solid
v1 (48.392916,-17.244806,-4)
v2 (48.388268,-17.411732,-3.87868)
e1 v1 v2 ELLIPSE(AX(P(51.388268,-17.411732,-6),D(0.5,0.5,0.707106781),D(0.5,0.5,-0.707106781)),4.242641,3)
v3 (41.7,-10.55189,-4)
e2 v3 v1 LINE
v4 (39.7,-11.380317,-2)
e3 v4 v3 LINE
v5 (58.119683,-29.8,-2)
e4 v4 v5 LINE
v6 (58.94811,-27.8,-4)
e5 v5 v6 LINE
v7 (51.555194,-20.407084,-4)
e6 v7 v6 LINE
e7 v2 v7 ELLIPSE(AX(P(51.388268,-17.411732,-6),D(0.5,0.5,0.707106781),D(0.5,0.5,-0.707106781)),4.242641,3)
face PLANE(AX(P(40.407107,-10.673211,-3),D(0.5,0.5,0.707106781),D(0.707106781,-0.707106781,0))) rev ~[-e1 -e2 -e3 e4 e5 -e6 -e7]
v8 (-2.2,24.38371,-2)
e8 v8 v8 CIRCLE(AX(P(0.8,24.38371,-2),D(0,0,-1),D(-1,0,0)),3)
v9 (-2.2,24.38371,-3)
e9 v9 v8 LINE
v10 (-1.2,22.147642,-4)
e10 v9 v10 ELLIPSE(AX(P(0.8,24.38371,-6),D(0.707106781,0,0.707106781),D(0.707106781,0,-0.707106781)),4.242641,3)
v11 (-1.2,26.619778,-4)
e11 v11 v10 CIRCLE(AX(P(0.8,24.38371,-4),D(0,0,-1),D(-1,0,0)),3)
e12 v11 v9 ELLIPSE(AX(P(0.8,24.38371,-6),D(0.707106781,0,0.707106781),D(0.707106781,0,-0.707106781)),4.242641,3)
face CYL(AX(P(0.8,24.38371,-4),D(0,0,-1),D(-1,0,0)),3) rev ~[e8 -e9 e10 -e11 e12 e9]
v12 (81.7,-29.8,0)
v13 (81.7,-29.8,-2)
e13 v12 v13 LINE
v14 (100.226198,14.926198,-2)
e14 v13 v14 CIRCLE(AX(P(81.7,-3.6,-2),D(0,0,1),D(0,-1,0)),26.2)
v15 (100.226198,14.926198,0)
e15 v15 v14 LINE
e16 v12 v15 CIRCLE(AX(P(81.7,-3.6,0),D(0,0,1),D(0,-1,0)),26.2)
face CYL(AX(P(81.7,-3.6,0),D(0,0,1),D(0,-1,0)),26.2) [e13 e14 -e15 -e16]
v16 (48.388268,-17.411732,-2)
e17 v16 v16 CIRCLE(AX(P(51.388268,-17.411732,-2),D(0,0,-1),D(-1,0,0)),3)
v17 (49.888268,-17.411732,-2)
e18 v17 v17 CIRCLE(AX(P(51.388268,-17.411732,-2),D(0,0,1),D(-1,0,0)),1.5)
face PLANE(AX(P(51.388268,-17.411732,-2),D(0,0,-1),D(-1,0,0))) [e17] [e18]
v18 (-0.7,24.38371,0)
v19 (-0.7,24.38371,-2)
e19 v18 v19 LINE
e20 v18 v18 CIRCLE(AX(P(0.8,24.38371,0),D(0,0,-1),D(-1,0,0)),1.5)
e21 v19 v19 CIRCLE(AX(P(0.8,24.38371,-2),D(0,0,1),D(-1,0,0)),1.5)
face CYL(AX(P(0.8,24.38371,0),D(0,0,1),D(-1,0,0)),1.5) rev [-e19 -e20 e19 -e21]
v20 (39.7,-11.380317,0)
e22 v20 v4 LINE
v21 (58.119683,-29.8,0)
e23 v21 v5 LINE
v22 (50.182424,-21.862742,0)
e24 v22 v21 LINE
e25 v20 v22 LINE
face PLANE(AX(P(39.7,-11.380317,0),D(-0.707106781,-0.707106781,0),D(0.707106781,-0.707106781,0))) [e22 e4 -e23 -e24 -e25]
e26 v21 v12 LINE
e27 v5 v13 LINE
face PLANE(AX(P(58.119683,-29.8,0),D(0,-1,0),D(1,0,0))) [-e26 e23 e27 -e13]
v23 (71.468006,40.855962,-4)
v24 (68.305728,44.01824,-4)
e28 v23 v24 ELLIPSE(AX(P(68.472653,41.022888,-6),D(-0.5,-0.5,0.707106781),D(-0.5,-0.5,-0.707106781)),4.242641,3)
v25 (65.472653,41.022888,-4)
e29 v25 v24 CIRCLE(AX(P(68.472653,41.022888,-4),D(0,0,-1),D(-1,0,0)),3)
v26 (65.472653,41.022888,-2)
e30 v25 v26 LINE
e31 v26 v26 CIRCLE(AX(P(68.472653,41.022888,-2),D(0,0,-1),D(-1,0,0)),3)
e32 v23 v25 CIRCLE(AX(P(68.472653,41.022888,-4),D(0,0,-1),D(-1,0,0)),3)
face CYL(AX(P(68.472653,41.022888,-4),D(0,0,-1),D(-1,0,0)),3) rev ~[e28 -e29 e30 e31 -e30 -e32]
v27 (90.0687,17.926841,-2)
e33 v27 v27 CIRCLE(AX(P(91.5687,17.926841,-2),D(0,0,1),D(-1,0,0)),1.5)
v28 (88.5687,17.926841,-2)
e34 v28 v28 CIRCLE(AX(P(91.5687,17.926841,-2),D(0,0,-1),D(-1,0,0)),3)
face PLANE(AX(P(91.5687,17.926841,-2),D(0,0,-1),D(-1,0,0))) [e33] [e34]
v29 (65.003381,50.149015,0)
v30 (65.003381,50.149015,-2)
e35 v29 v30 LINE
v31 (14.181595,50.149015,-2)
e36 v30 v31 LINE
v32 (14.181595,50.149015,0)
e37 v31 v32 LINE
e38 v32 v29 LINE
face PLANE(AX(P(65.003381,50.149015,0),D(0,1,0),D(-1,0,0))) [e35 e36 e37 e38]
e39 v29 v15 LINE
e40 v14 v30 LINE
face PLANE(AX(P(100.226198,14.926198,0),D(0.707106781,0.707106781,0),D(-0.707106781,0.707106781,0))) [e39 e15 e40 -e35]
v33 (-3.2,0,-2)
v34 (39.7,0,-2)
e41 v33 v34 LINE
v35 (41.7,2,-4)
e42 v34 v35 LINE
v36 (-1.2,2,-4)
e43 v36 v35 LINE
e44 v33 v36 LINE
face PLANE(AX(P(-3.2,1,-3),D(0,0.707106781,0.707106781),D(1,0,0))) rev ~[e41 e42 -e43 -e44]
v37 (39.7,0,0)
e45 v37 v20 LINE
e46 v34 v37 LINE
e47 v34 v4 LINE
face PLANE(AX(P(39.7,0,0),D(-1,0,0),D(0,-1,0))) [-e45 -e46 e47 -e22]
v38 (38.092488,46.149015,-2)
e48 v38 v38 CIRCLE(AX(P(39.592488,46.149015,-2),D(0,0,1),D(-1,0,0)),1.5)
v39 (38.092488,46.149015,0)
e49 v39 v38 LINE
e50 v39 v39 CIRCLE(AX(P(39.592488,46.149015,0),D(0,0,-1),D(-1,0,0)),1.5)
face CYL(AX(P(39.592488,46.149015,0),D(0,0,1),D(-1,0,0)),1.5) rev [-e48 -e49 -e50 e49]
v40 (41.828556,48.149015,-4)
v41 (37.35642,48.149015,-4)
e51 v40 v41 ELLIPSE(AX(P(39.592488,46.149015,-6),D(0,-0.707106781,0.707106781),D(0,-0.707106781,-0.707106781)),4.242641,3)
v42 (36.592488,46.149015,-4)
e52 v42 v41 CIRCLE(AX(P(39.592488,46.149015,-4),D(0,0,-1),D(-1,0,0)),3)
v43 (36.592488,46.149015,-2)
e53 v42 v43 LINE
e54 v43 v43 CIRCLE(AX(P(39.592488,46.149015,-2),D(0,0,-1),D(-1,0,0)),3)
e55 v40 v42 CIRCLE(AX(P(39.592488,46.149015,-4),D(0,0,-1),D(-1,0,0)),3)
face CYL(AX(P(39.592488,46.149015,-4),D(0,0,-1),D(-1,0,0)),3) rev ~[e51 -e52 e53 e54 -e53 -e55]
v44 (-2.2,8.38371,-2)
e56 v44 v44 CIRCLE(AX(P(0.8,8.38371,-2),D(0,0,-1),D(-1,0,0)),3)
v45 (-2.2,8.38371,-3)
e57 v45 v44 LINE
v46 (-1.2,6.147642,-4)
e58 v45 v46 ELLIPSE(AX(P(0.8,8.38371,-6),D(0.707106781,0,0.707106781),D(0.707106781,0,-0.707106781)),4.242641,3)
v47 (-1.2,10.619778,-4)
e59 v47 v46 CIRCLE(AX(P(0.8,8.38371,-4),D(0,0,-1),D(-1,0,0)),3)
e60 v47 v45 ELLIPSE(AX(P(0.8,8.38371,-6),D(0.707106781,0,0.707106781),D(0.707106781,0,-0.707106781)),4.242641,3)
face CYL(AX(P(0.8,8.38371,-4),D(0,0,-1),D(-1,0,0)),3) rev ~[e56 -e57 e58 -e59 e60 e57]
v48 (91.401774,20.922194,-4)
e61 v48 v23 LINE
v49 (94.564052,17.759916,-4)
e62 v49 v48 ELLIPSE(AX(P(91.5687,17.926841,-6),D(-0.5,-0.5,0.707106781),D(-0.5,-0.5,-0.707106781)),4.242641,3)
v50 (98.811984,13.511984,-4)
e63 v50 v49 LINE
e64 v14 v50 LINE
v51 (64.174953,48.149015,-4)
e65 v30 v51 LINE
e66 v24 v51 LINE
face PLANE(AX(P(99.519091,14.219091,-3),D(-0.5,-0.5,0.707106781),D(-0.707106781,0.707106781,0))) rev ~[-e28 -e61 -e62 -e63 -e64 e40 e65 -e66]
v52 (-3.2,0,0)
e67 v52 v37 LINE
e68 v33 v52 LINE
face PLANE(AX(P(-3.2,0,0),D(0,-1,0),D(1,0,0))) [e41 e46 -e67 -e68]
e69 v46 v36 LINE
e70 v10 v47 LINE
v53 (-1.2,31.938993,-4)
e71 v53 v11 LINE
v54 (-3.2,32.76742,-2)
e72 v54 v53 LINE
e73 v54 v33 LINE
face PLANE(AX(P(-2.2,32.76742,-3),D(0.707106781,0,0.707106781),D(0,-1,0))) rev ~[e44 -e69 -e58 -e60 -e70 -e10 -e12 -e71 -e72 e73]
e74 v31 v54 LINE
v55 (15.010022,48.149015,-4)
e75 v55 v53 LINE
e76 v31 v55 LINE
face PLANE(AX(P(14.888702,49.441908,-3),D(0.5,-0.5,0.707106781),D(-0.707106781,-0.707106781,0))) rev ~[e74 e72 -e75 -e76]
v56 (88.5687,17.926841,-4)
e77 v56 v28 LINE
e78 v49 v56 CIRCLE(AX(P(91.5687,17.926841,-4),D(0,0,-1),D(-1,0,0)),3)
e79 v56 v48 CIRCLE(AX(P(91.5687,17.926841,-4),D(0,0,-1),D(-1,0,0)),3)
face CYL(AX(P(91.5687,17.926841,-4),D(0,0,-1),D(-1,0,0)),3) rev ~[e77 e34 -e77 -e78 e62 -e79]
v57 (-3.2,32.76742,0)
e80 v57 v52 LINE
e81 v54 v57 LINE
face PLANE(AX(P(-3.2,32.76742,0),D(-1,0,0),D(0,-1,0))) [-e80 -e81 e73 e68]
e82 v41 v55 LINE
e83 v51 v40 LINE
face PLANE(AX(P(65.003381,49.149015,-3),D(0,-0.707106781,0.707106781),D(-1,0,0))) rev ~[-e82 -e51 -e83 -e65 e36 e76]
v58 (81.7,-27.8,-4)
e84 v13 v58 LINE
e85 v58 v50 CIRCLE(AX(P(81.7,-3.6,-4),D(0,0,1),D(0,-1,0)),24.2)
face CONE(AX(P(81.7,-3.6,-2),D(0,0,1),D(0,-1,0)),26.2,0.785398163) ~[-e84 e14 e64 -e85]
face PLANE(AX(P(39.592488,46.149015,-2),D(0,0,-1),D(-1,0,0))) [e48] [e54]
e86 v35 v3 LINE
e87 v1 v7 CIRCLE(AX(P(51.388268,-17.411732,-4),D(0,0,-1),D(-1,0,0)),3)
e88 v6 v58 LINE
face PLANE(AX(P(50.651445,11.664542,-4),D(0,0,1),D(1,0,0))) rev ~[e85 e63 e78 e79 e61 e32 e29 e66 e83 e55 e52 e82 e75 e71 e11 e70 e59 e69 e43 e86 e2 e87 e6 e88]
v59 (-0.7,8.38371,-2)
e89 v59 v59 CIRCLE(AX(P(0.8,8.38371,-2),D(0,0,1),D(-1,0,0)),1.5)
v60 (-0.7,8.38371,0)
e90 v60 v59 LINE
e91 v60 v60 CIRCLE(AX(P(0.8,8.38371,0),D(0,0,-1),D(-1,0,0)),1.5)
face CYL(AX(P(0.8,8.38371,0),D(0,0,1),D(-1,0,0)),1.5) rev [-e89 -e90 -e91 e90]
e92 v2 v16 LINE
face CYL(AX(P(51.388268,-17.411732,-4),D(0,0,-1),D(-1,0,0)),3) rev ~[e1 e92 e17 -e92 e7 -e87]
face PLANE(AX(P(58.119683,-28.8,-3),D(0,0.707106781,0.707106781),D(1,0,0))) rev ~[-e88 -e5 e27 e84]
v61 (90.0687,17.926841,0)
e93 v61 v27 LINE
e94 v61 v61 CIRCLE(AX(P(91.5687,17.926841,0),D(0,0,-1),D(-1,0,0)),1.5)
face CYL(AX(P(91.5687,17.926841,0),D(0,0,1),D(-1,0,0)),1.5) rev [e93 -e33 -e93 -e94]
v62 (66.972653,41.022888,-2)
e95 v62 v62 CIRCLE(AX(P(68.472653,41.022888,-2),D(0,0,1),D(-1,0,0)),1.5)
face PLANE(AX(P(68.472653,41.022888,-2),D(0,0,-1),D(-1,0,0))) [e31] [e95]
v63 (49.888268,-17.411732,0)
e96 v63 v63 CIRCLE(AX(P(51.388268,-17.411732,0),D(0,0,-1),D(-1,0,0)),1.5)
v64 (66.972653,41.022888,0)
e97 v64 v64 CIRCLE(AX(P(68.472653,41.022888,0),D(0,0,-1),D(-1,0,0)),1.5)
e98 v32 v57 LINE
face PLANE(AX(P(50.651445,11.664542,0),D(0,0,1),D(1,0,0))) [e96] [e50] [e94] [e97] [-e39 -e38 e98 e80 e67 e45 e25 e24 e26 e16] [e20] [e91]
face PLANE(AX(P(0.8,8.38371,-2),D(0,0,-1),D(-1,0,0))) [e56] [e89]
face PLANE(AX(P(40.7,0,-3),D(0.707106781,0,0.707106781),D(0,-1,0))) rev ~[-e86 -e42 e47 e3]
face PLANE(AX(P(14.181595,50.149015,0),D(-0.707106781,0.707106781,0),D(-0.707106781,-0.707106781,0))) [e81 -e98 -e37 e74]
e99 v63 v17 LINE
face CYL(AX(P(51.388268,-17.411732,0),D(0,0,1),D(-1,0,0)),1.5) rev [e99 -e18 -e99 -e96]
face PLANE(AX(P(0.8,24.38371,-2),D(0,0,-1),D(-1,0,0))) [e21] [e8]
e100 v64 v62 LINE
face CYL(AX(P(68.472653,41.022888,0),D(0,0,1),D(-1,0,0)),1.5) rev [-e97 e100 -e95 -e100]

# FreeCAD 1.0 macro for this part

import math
import FreeCAD as App
import Part
import Sketcher
from FreeCAD import Vector
Q = App.Units.Quantity


def edges_at(feature, points):
    """Names of the edges that pass closest to the given points."""
    edges = feature.Shape.Edges
    near = lambda p: min(range(len(edges)), key=lambda i: edges[i].distToShape(Part.Vertex(*p))[0])
    return sorted({f"Edge{near(p) + 1}" for p in points})

doc = App.newDocument("Part")
body = doc.addObject("PartDesign::Body", "Body")

# Sketch on XY plane
sketch1 = body.newObject("Sketcher::SketchObject", "Sketch")
sketch1.AttachmentSupport = (doc.getObject("XY_Plane"), [""])
sketch1.MapMode = "FlatFace"
sketch1.addGeometry(Part.LineSegment(Vector(40, 0, 0), Vector(40, -11, 0)), False)
sketch1.addGeometry(Part.LineSegment(Vector(40, -11, 0), Vector(50, -22, 0)), False)
sketch1.addGeometry(Part.LineSegment(Vector(50, -22, 0), Vector(58, -30, 0)), False)
sketch1.addGeometry(Part.LineSegment(Vector(58, -30, 0), Vector(82, -30, 0)), False)
sketch1.addGeometry(Part.ArcOfCircle(Part.Circle(Vector(82, -4, 0), Vector(0, 0, 1), 26), math.radians(-90), math.radians(45)), False)
sketch1.addGeometry(Part.LineSegment(Vector(100, 15, 0), Vector(65, 50, 0)), False)
sketch1.addGeometry(Part.LineSegment(Vector(65, 50, 0), Vector(14, 50, 0)), False)
sketch1.addGeometry(Part.LineSegment(Vector(14, 50, 0), Vector(-3, 33, 0)), False)
sketch1.addGeometry(Part.LineSegment(Vector(-3, 33, 0), Vector(-3, 0, 0)), False)
sketch1.addGeometry(Part.LineSegment(Vector(-3, 0, 0), Vector(40, 0, 0)), False)
sketch1.addGeometry(Part.LineSegment(Vector(42, 2, 0), Vector(-1, 2, 0)), False)
sketch1.addGeometry(Part.LineSegment(Vector(-1, 2, 0), Vector(-1, 32, 0)), False)
sketch1.addGeometry(Part.LineSegment(Vector(-1, 32, 0), Vector(15, 48, 0)), False)
sketch1.addGeometry(Part.LineSegment(Vector(15, 48, 0), Vector(64, 48, 0)), False)
sketch1.addGeometry(Part.LineSegment(Vector(64, 48, 0), Vector(98, 13, 0)), False)
sketch1.addGeometry(Part.ArcOfCircle(Part.Circle(Vector(82, -4, 0), Vector(0, 0, 1), 24), math.radians(-90), math.radians(45)), False)
sketch1.addGeometry(Part.LineSegment(Vector(82, -27, 0), Vector(59, -27, 0)), False)
sketch1.addGeometry(Part.LineSegment(Vector(59, -27, 0), Vector(42, -10, 0)), False)
sketch1.addGeometry(Part.LineSegment(Vector(42, -10, 0), Vector(42, 2, 0)), False)
sketch1.addConstraint(Sketcher.Constraint("Coincident", 0, 2, 1, 1))
sketch1.addConstraint(Sketcher.Constraint("Coincident", 1, 2, 2, 1))
sketch1.addConstraint(Sketcher.Constraint("Coincident", 2, 2, 3, 1))
sketch1.addConstraint(Sketcher.Constraint("Tangent", 3, 2, 4, 1))
sketch1.addConstraint(Sketcher.Constraint("Tangent", 4, 2, 5, 1))
sketch1.addConstraint(Sketcher.Constraint("Coincident", 5, 2, 6, 1))
sketch1.addConstraint(Sketcher.Constraint("Coincident", 6, 2, 7, 1))
sketch1.addConstraint(Sketcher.Constraint("Coincident", 7, 2, 8, 1))
sketch1.addConstraint(Sketcher.Constraint("Coincident", 8, 2, 9, 1))
sketch1.addConstraint(Sketcher.Constraint("Coincident", 9, 2, 0, 1))
sketch1.addConstraint(Sketcher.Constraint("Coincident", 10, 2, 11, 1))
sketch1.addConstraint(Sketcher.Constraint("Coincident", 11, 2, 12, 1))
sketch1.addConstraint(Sketcher.Constraint("Coincident", 12, 2, 13, 1))
sketch1.addConstraint(Sketcher.Constraint("Coincident", 13, 2, 14, 1))
sketch1.addConstraint(Sketcher.Constraint("Tangent", 14, 2, 15, 2))
sketch1.addConstraint(Sketcher.Constraint("Tangent", 15, 1, 16, 1))
sketch1.addConstraint(Sketcher.Constraint("Coincident", 16, 2, 17, 1))
sketch1.addConstraint(Sketcher.Constraint("Coincident", 17, 2, 18, 1))
sketch1.addConstraint(Sketcher.Constraint("Coincident", 18, 2, 10, 1))
sketch1.addConstraint(Sketcher.Constraint("Vertical", 0))
sketch1.addConstraint(Sketcher.Constraint("Horizontal", 3))
sketch1.addConstraint(Sketcher.Constraint("Horizontal", 6))
sketch1.addConstraint(Sketcher.Constraint("Vertical", 8))
sketch1.addConstraint(Sketcher.Constraint("Horizontal", 9))
sketch1.addConstraint(Sketcher.Constraint("Horizontal", 10))
sketch1.addConstraint(Sketcher.Constraint("Vertical", 11))
sketch1.addConstraint(Sketcher.Constraint("Horizontal", 13))
sketch1.addConstraint(Sketcher.Constraint("Horizontal", 16))
sketch1.addConstraint(Sketcher.Constraint("Vertical", 18))
sketch1.addConstraint(Sketcher.Constraint("Coincident", 15, 3, 4, 3))
sketch1.addConstraint(Sketcher.Constraint("PointOnObject", 8, 2, -1))
sketch1.addConstraint(Sketcher.Constraint("Parallel", 1, 2))
sketch1.addConstraint(Sketcher.Constraint("Parallel", 2, 5))
sketch1.addConstraint(Sketcher.Constraint("Perpendicular", 5, 7))
sketch1.addConstraint(Sketcher.Constraint("Parallel", 7, 12))
sketch1.addConstraint(Sketcher.Constraint("Perpendicular", 12, 14))
sketch1.addConstraint(Sketcher.Constraint("Parallel", 14, 17))
sketch1.addConstraint(Sketcher.Constraint("Equal", 9, 10))
sketch1.addConstraint(Sketcher.Constraint("Radius", 4, Q("26.2 mm")))
sketch1.addConstraint(Sketcher.Constraint("Radius", 15, Q("23.7 mm")))
sketch1.addConstraint(Sketcher.Constraint("Angle", 1, Q("-45 deg")))
sketch1.addConstraint(Sketcher.Constraint("DistanceX", 9, 1, 9, 2, Q("42.9 mm")))
sketch1.addConstraint(Sketcher.Constraint("DistanceX", 0, 2, 4, 3, Q("42 mm")))
sketch1.addConstraint(Sketcher.Constraint("DistanceX", -1, 1, 4, 3, Q("81.7 mm")))
sketch1.addConstraint(Sketcher.Constraint("DistanceY", 4, 3, -1, 1, Q("3.6 mm")))
sketch1.addConstraint(Sketcher.Constraint("DistanceX", 10, 2, -1, 1, Q("0.7 mm")))
sketch1.addConstraint(Sketcher.Constraint("DistanceY", -1, 1, 10, 2, Q("2.5 mm")))
sketch1.addConstraint(Sketcher.Constraint("DistanceY", 12, 2, 6, 2, Q("2.5 mm")))
sketch1.addConstraint(Sketcher.Constraint("DistanceY", 8, 2, 8, 1, Q("32.76742 mm")))
sketch1.addConstraint(Sketcher.Constraint("Distance", 2, Q("11.224978 mm")))
sketch1.addConstraint(Sketcher.Constraint("Distance", 12, Q("22.51022 mm")))
sketch1.addConstraint(Sketcher.Constraint("Distance", 14, Q("48.777052 mm")))
sketch1.addConstraint(Sketcher.Constraint("DistanceX", 3, 1, 3, 2, Q("23.580317 mm")))
sketch1.addConstraint(Sketcher.Constraint("DistanceX", 16, 2, 16, 1, Q("22.544783 mm")))
pad1 = body.newObject("PartDesign::Pad", "Pad")
pad1.Profile = sketch1
pad1.Length = 48

# Sketch on an angled plane
sketch2 = body.newObject("Sketcher::SketchObject", "Sketch001")
sketch2.Placement = App.Placement(Vector(57.576198, 57.576198, 0), App.Rotation(Vector(0, 0, -1), Vector(-0.707106781, 0.707106781, 0), Vector(0.707106781, 0.707106781, 0), "ZXY"))
sketch2.addGeometry(Part.Circle(Vector(-44, -19.4, 0), Vector(0, 0, 1), 1.5), False)
sketch2.addGeometry(Part.Circle(Vector(-44, -51.4, 0), Vector(0, 0, 1), 1.5), False)
sketch2.addConstraint(Sketcher.Constraint("Equal", 0, 1))
sketch2.addConstraint(Sketcher.Constraint("Vertical", 0, 3, 1, 3))
sketch2.addConstraint(Sketcher.Constraint("Diameter", 0, Q("3 mm")))
sketch2.addConstraint(Sketcher.Constraint("DistanceX", 0, 3, -1, 1, Q("44 mm")))
sketch2.addConstraint(Sketcher.Constraint("DistanceY", 1, 3, 0, 3, Q("32 mm")))
sketch2.addConstraint(Sketcher.Constraint("DistanceY", 0, 3, -1, 1, Q("19.409916 mm")))
pocket1 = body.newObject("PartDesign::Pocket", "Pocket")
pocket1.Profile = sketch2
pocket1.Length = 10

# Sketch on XZ plane
sketch3 = body.newObject("Sketcher::SketchObject", "Sketch002")
sketch3.AttachmentSupport = (doc.getObject("XZ_Plane"), [""])
sketch3.MapMode = "FlatFace"
sketch3.AttachmentOffset = App.Placement(Vector(0, 0, -50.149015), App.Rotation())
sketch3.addGeometry(Part.Circle(Vector(39.6, 44, 0), Vector(0, 0, 1), 1.5), False)
sketch3.addConstraint(Sketcher.Constraint("Diameter", 0, Q("3 mm")))
sketch3.addConstraint(Sketcher.Constraint("DistanceY", -1, 1, 0, 3, Q("44 mm")))
sketch3.addConstraint(Sketcher.Constraint("DistanceX", -1, 1, 0, 3, Q("39.592488 mm")))
pocket2 = body.newObject("PartDesign::Pocket", "Pocket001")
pocket2.Profile = sketch3
pocket2.Length = 10
pocket2.Reversed = True

# Sketch on YZ plane
sketch4 = body.newObject("Sketcher::SketchObject", "Sketch003")
sketch4.AttachmentSupport = (doc.getObject("YZ_Plane"), [""])
sketch4.MapMode = "FlatFace"
sketch4.AttachmentOffset = App.Placement(Vector(0, 0, -3.2), App.Rotation())
sketch4.addGeometry(Part.Circle(Vector(24.4, 44, 0), Vector(0, 0, 1), 1.5), False)
sketch4.addGeometry(Part.Circle(Vector(8.4, 44, 0), Vector(0, 0, 1), 1.5), False)
sketch4.addConstraint(Sketcher.Constraint("Equal", 0, 1))
sketch4.addConstraint(Sketcher.Constraint("Horizontal", 0, 3, 1, 3))
sketch4.addConstraint(Sketcher.Constraint("Diameter", 0, Q("3 mm")))
sketch4.addConstraint(Sketcher.Constraint("DistanceY", -1, 1, 0, 3, Q("44 mm")))
sketch4.addConstraint(Sketcher.Constraint("DistanceX", 1, 3, 0, 3, Q("16 mm")))
sketch4.addConstraint(Sketcher.Constraint("DistanceX", -1, 1, 0, 3, Q("24.38371 mm")))
pocket3 = body.newObject("PartDesign::Pocket", "Pocket002")
pocket3.Profile = sketch4
pocket3.Length = 10
pocket3.Reversed = True

# Sketch on an angled plane
sketch5 = body.newObject("Sketcher::SketchObject", "Sketch004")
sketch5.Placement = App.Placement(Vector(14.159841, 14.159841, 0), App.Rotation(Vector(0, 0, 1), Vector(-0.707106781, 0.707106781, 0), Vector(-0.707106781, -0.707106781, 0), "ZXY"))
sketch5.addGeometry(Part.Circle(Vector(44, -48.6, 0), Vector(0, 0, 1), 1.5), False)
sketch5.addConstraint(Sketcher.Constraint("Diameter", 0, Q("3 mm")))
sketch5.addConstraint(Sketcher.Constraint("DistanceX", -1, 1, 0, 3, Q("44 mm")))
sketch5.addConstraint(Sketcher.Constraint("DistanceY", 0, 3, -1, 1, Q("48.648947 mm")))
pocket4 = body.newObject("PartDesign::Pocket", "Pocket003")
pocket4.Profile = sketch5
pocket4.Length = 10

# Sketch on XY plane
sketch6 = body.newObject("Sketcher::SketchObject", "Sketch005")
sketch6.AttachmentSupport = (doc.getObject("XY_Plane"), [""])
sketch6.MapMode = "FlatFace"
sketch6.AttachmentOffset = App.Placement(Vector(0, 0, 48), App.Rotation())
sketch6.addGeometry(Part.LineSegment(Vector(39.7, 0, 0), Vector(39.7, -2, 0)), False)
sketch6.addGeometry(Part.LineSegment(Vector(39.7, -2, 0), Vector(42.2, -2, 0)), False)
sketch6.addGeometry(Part.LineSegment(Vector(42.2, -2, 0), Vector(42.2, 2.5, 0)), False)
sketch6.addGeometry(Part.LineSegment(Vector(42.2, 2.5, 0), Vector(-0.7, 2.5, 0)), False)
sketch6.addGeometry(Part.LineSegment(Vector(-0.7, 2.5, 0), Vector(-0.7, 0, 0)), False)
sketch6.addGeometry(Part.LineSegment(Vector(-0.7, 0, 0), Vector(39.7, 0, 0)), False)
sketch6.addConstraint(Sketcher.Constraint("Coincident", 0, 2, 1, 1))
sketch6.addConstraint(Sketcher.Constraint("Coincident", 1, 2, 2, 1))
sketch6.addConstraint(Sketcher.Constraint("Coincident", 2, 2, 3, 1))
sketch6.addConstraint(Sketcher.Constraint("Coincident", 3, 2, 4, 1))
sketch6.addConstraint(Sketcher.Constraint("Coincident", 4, 2, 5, 1))
sketch6.addConstraint(Sketcher.Constraint("Coincident", 5, 2, 0, 1))
sketch6.addConstraint(Sketcher.Constraint("Vertical", 0))
sketch6.addConstraint(Sketcher.Constraint("Horizontal", 1))
sketch6.addConstraint(Sketcher.Constraint("Vertical", 2))
sketch6.addConstraint(Sketcher.Constraint("Horizontal", 3))
sketch6.addConstraint(Sketcher.Constraint("Vertical", 4))
sketch6.addConstraint(Sketcher.Constraint("Horizontal", 5))
sketch6.addConstraint(Sketcher.Constraint("PointOnObject", 4, 2, -1))
sketch6.addConstraint(Sketcher.Constraint("Equal", 1, 4))
sketch6.addConstraint(Sketcher.Constraint("DistanceY", 0, 2, 0, 1, Q("2 mm")))
sketch6.addConstraint(Sketcher.Constraint("DistanceX", 1, 1, 1, 2, Q("2.5 mm")))
sketch6.addConstraint(Sketcher.Constraint("DistanceX", 3, 2, 3, 1, Q("42.9 mm")))
sketch6.addConstraint(Sketcher.Constraint("DistanceX", -1, 1, 0, 2, Q("39.7 mm")))
pocket5 = body.newObject("PartDesign::Pocket", "Pocket004")
pocket5.Profile = sketch6
pocket5.Length = 10

# Sketch on XY plane
sketch7 = body.newObject("Sketcher::SketchObject", "Sketch006")
sketch7.AttachmentSupport = (doc.getObject("XY_Plane"), [""])
sketch7.MapMode = "FlatFace"
sketch7.addGeometry(Part.Circle(Vector(91.1, 18.4, 0), Vector(0, 0, 1), 4), False)
sketch7.addGeometry(Part.LineSegment(Vector(89.7, 17, 0), Vector(92.5, 17, 0)), False)
sketch7.addGeometry(Part.LineSegment(Vector(92.5, 17, 0), Vector(92.5, 19.8, 0)), False)
sketch7.addGeometry(Part.LineSegment(Vector(92.5, 19.8, 0), Vector(89.7, 19.8, 0)), False)
sketch7.addGeometry(Part.LineSegment(Vector(89.7, 19.8, 0), Vector(89.7, 17, 0)), False)
sketch7.addGeometry(Part.Circle(Vector(68.5, 41, 0), Vector(0, 0, 1), 4), False)
sketch7.addGeometry(Part.LineSegment(Vector(67.1, 39.6, 0), Vector(69.9, 39.6, 0)), False)
sketch7.addGeometry(Part.LineSegment(Vector(69.9, 39.6, 0), Vector(69.9, 42.4, 0)), False)
sketch7.addGeometry(Part.LineSegment(Vector(69.9, 42.4, 0), Vector(67.1, 42.4, 0)), False)
sketch7.addGeometry(Part.LineSegment(Vector(67.1, 42.4, 0), Vector(67.1, 39.6, 0)), False)
sketch7.addGeometry(Part.Circle(Vector(39.6, 46.1, 0), Vector(0, 0, 1), 4), False)
sketch7.addGeometry(Part.LineSegment(Vector(38.2, 44.7, 0), Vector(41, 44.7, 0)), False)
sketch7.addGeometry(Part.LineSegment(Vector(41, 44.7, 0), Vector(41, 47.5, 0)), False)
sketch7.addGeometry(Part.LineSegment(Vector(41, 47.5, 0), Vector(38.2, 47.5, 0)), False)
sketch7.addGeometry(Part.LineSegment(Vector(38.2, 47.5, 0), Vector(38.2, 44.7, 0)), False)
sketch7.addGeometry(Part.Circle(Vector(0.8, 24.4, 0), Vector(0, 0, 1), 4), False)
sketch7.addGeometry(Part.LineSegment(Vector(-0.6, 23, 0), Vector(2.2, 23, 0)), False)
sketch7.addGeometry(Part.LineSegment(Vector(2.2, 23, 0), Vector(2.2, 25.8, 0)), False)
sketch7.addGeometry(Part.LineSegment(Vector(2.2, 25.8, 0), Vector(-0.6, 25.8, 0)), False)
sketch7.addGeometry(Part.LineSegment(Vector(-0.6, 25.8, 0), Vector(-0.6, 23, 0)), False)
sketch7.addGeometry(Part.Circle(Vector(0.8, 8.4, 0), Vector(0, 0, 1), 4), False)
sketch7.addGeometry(Part.LineSegment(Vector(-0.6, 7, 0), Vector(2.2, 7, 0)), False)
sketch7.addGeometry(Part.LineSegment(Vector(2.2, 7, 0), Vector(2.2, 9.8, 0)), False)
sketch7.addGeometry(Part.LineSegment(Vector(2.2, 9.8, 0), Vector(-0.6, 9.8, 0)), False)
sketch7.addGeometry(Part.LineSegment(Vector(-0.6, 9.8, 0), Vector(-0.6, 7, 0)), False)
sketch7.addGeometry(Part.Circle(Vector(51.4, -17.4, 0), Vector(0, 0, 1), 4), False)
sketch7.addGeometry(Part.LineSegment(Vector(50, -18.8, 0), Vector(52.8, -18.8, 0)), False)
sketch7.addGeometry(Part.LineSegment(Vector(52.8, -18.8, 0), Vector(52.8, -16, 0)), False)
sketch7.addGeometry(Part.LineSegment(Vector(52.8, -16, 0), Vector(50, -16, 0)), False)
sketch7.addGeometry(Part.LineSegment(Vector(50, -16, 0), Vector(50, -18.8, 0)), False)
sketch7.addConstraint(Sketcher.Constraint("Coincident", 1, 2, 2, 1))
sketch7.addConstraint(Sketcher.Constraint("Coincident", 2, 2, 3, 1))
sketch7.addConstraint(Sketcher.Constraint("Coincident", 3, 2, 4, 1))
sketch7.addConstraint(Sketcher.Constraint("Coincident", 4, 2, 1, 1))
sketch7.addConstraint(Sketcher.Constraint("Coincident", 6, 2, 7, 1))
sketch7.addConstraint(Sketcher.Constraint("Coincident", 7, 2, 8, 1))
sketch7.addConstraint(Sketcher.Constraint("Coincident", 8, 2, 9, 1))
sketch7.addConstraint(Sketcher.Constraint("Coincident", 9, 2, 6, 1))
sketch7.addConstraint(Sketcher.Constraint("Coincident", 11, 2, 12, 1))
sketch7.addConstraint(Sketcher.Constraint("Coincident", 12, 2, 13, 1))
sketch7.addConstraint(Sketcher.Constraint("Coincident", 13, 2, 14, 1))
sketch7.addConstraint(Sketcher.Constraint("Coincident", 14, 2, 11, 1))
sketch7.addConstraint(Sketcher.Constraint("Coincident", 16, 2, 17, 1))
sketch7.addConstraint(Sketcher.Constraint("Coincident", 17, 2, 18, 1))
sketch7.addConstraint(Sketcher.Constraint("Coincident", 18, 2, 19, 1))
sketch7.addConstraint(Sketcher.Constraint("Coincident", 19, 2, 16, 1))
sketch7.addConstraint(Sketcher.Constraint("Coincident", 21, 2, 22, 1))
sketch7.addConstraint(Sketcher.Constraint("Coincident", 22, 2, 23, 1))
sketch7.addConstraint(Sketcher.Constraint("Coincident", 23, 2, 24, 1))
sketch7.addConstraint(Sketcher.Constraint("Coincident", 24, 2, 21, 1))
sketch7.addConstraint(Sketcher.Constraint("Coincident", 26, 2, 27, 1))
sketch7.addConstraint(Sketcher.Constraint("Coincident", 27, 2, 28, 1))
sketch7.addConstraint(Sketcher.Constraint("Coincident", 28, 2, 29, 1))
sketch7.addConstraint(Sketcher.Constraint("Coincident", 29, 2, 26, 1))
sketch7.addConstraint(Sketcher.Constraint("Horizontal", 1))
sketch7.addConstraint(Sketcher.Constraint("Vertical", 2))
sketch7.addConstraint(Sketcher.Constraint("Horizontal", 3))
sketch7.addConstraint(Sketcher.Constraint("Vertical", 4))
sketch7.addConstraint(Sketcher.Constraint("Horizontal", 6))
sketch7.addConstraint(Sketcher.Constraint("Vertical", 7))
sketch7.addConstraint(Sketcher.Constraint("Horizontal", 8))
sketch7.addConstraint(Sketcher.Constraint("Vertical", 9))
sketch7.addConstraint(Sketcher.Constraint("Horizontal", 11))
sketch7.addConstraint(Sketcher.Constraint("Vertical", 12))
sketch7.addConstraint(Sketcher.Constraint("Horizontal", 13))
sketch7.addConstraint(Sketcher.Constraint("Vertical", 14))
sketch7.addConstraint(Sketcher.Constraint("Horizontal", 16))
sketch7.addConstraint(Sketcher.Constraint("Vertical", 17))
sketch7.addConstraint(Sketcher.Constraint("Horizontal", 18))
sketch7.addConstraint(Sketcher.Constraint("Vertical", 19))
sketch7.addConstraint(Sketcher.Constraint("Horizontal", 21))
sketch7.addConstraint(Sketcher.Constraint("Vertical", 22))
sketch7.addConstraint(Sketcher.Constraint("Horizontal", 23))
sketch7.addConstraint(Sketcher.Constraint("Vertical", 24))
sketch7.addConstraint(Sketcher.Constraint("Horizontal", 26))
sketch7.addConstraint(Sketcher.Constraint("Vertical", 27))
sketch7.addConstraint(Sketcher.Constraint("Horizontal", 28))
sketch7.addConstraint(Sketcher.Constraint("Vertical", 29))
sketch7.addConstraint(Sketcher.Constraint("Equal", 0, 5))
sketch7.addConstraint(Sketcher.Constraint("Equal", 5, 10))
sketch7.addConstraint(Sketcher.Constraint("Equal", 10, 15))
sketch7.addConstraint(Sketcher.Constraint("Equal", 15, 20))
sketch7.addConstraint(Sketcher.Constraint("Equal", 20, 25))
sketch7.addConstraint(Sketcher.Constraint("Vertical", 15, 3, 20, 3))
sketch7.addConstraint(Sketcher.Constraint("Vertical", 17, 2, 21, 2))
sketch7.addConstraint(Sketcher.Constraint("Vertical", 19, 2, 23, 2))
sketch7.addConstraint(Sketcher.Constraint("Equal", 3, 6))
sketch7.addConstraint(Sketcher.Constraint("Equal", 8, 11))
sketch7.addConstraint(Sketcher.Constraint("Equal", 13, 16))
sketch7.addConstraint(Sketcher.Constraint("Equal", 23, 26))
sketch7.addConstraint(Sketcher.Constraint("Equal", 28, 2))
sketch7.addConstraint(Sketcher.Constraint("Equal", 4, 7))
sketch7.addConstraint(Sketcher.Constraint("Equal", 9, 12))
sketch7.addConstraint(Sketcher.Constraint("Equal", 14, 17))
sketch7.addConstraint(Sketcher.Constraint("Equal", 19, 22))
sketch7.addConstraint(Sketcher.Constraint("Equal", 24, 27))
sketch7.addConstraint(Sketcher.Constraint("Diameter", 0, Q("8 mm")))
sketch7.addConstraint(Sketcher.Constraint("DistanceX", 1, 1, 1, 2, Q("2.8 mm")))
sketch7.addConstraint(Sketcher.Constraint("DistanceY", 20, 3, 15, 3, Q("16 mm")))
sketch7.addConstraint(Sketcher.Constraint("DistanceY", 21, 2, 16, 2, Q("16 mm")))
sketch7.addConstraint(Sketcher.Constraint("DistanceX", -1, 1, 15, 3, Q("0.8 mm")))
sketch7.addConstraint(Sketcher.Constraint("DistanceX", -1, 1, 16, 2, Q("2.2 mm")))
sketch7.addConstraint(Sketcher.Constraint("DistanceX", 0, 3, 1, 2, Q("1.4 mm")))
sketch7.addConstraint(Sketcher.Constraint("DistanceY", 1, 2, 0, 3, Q("1.4 mm")))
sketch7.addConstraint(Sketcher.Constraint("DistanceX", 5, 3, 6, 2, Q("1.4 mm")))
sketch7.addConstraint(Sketcher.Constraint("DistanceY", 6, 2, 5, 3, Q("1.4 mm")))
sketch7.addConstraint(Sketcher.Constraint("DistanceX", 10, 3, 11, 2, Q("1.4 mm")))
sketch7.addConstraint(Sketcher.Constraint("DistanceY", 11, 2, 10, 3, Q("1.4 mm")))
sketch7.addConstraint(Sketcher.Constraint("DistanceY", 16, 2, 15, 3, Q("1.4 mm")))
sketch7.addConstraint(Sketcher.Constraint("DistanceX", 25, 3, 26, 2, Q("1.4 mm")))
sketch7.addConstraint(Sketcher.Constraint("DistanceY", 26, 2, 25, 3, Q("1.4 mm")))
sketch7.addConstraint(Sketcher.Constraint("DistanceX", -1, 1, 0, 3, Q("91.10007 mm")))
sketch7.addConstraint(Sketcher.Constraint("DistanceY", -1, 1, 0, 3, Q("18.395471 mm")))
sketch7.addConstraint(Sketcher.Constraint("DistanceY", -1, 1, 15, 3, Q("24.38371 mm")))
sketch7.addConstraint(Sketcher.Constraint("DistanceX", -1, 1, 25, 3, Q("51.388268 mm")))
sketch7.addConstraint(Sketcher.Constraint("DistanceY", 25, 3, -1, 1, Q("17.411732 mm")))
sketch7.addConstraint(Sketcher.Constraint("DistanceY", 25, 3, 5, 3, Q("58.434619 mm")))
sketch7.addConstraint(Sketcher.Constraint("DistanceX", 10, 3, 25, 3, Q("11.795781 mm")))
sketch7.addConstraint(Sketcher.Constraint("DistanceX", -1, 1, 5, 3, Q("68.472653 mm")))
sketch7.addConstraint(Sketcher.Constraint("DistanceY", -1, 1, 10, 3, Q("46.149015 mm")))
pad2 = body.newObject("PartDesign::Pad", "Pad001")
pad2.Profile = sketch7
pad2.Length = 4

# Sketch on XY plane
sketch8 = body.newObject("Sketcher::SketchObject", "Sketch007")
sketch8.AttachmentSupport = (doc.getObject("XY_Plane"), [""])
sketch8.MapMode = "FlatFace"
sketch8.addGeometry(Part.LineSegment(Vector(14.2, 50.1, 0), Vector(65, 50.1, 0)), False)
sketch8.addGeometry(Part.LineSegment(Vector(65, 50.1, 0), Vector(100.2, 14.9, 0)), False)
sketch8.addGeometry(Part.ArcOfCircle(Part.Circle(Vector(81.7, -3.6, 0), Vector(0, 0, 1), 26.2), math.radians(-90), math.radians(45)), False)
sketch8.addGeometry(Part.LineSegment(Vector(81.7, -29.8, 0), Vector(58.1, -29.8, 0)), False)
sketch8.addGeometry(Part.LineSegment(Vector(58.1, -29.8, 0), Vector(39.7, -11.4, 0)), False)
sketch8.addGeometry(Part.LineSegment(Vector(39.7, -11.4, 0), Vector(39.7, 0, 0)), False)
sketch8.addGeometry(Part.LineSegment(Vector(39.7, 0, 0), Vector(-3.2, 0, 0)), False)
sketch8.addGeometry(Part.LineSegment(Vector(-3.2, 0, 0), Vector(-3.2, 32.8, 0)), False)
sketch8.addGeometry(Part.LineSegment(Vector(-3.2, 32.8, 0), Vector(14.2, 50.1, 0)), False)
sketch8.addGeometry(Part.Circle(Vector(0.8, 8.4, 0), Vector(0, 0, 1), 1.5), False)
sketch8.addGeometry(Part.Circle(Vector(51.4, -17.4, 0), Vector(0, 0, 1), 1.5), False)
sketch8.addGeometry(Part.Circle(Vector(0.8, 24.4, 0), Vector(0, 0, 1), 1.5), False)
sketch8.addGeometry(Part.Circle(Vector(39.6, 46.1, 0), Vector(0, 0, 1), 1.5), False)
sketch8.addGeometry(Part.Circle(Vector(91.6, 17.9, 0), Vector(0, 0, 1), 1.5), False)
sketch8.addGeometry(Part.Circle(Vector(68.5, 41, 0), Vector(0, 0, 1), 1.5), False)
sketch8.addConstraint(Sketcher.Constraint("Coincident", 0, 2, 1, 1))
sketch8.addConstraint(Sketcher.Constraint("Tangent", 1, 2, 2, 2))
sketch8.addConstraint(Sketcher.Constraint("Tangent", 2, 1, 3, 1))
sketch8.addConstraint(Sketcher.Constraint("Coincident", 3, 2, 4, 1))
sketch8.addConstraint(Sketcher.Constraint("Coincident", 4, 2, 5, 1))
sketch8.addConstraint(Sketcher.Constraint("Coincident", 5, 2, 6, 1))
sketch8.addConstraint(Sketcher.Constraint("Coincident", 6, 2, 7, 1))
sketch8.addConstraint(Sketcher.Constraint("Coincident", 7, 2, 8, 1))
sketch8.addConstraint(Sketcher.Constraint("Coincident", 8, 2, 0, 1))
sketch8.addConstraint(Sketcher.Constraint("Horizontal", 0))
sketch8.addConstraint(Sketcher.Constraint("Horizontal", 3))
sketch8.addConstraint(Sketcher.Constraint("Vertical", 5))
sketch8.addConstraint(Sketcher.Constraint("Horizontal", 6))
sketch8.addConstraint(Sketcher.Constraint("Vertical", 7))
sketch8.addConstraint(Sketcher.Constraint("Equal", 9, 10))
sketch8.addConstraint(Sketcher.Constraint("Equal", 10, 11))
sketch8.addConstraint(Sketcher.Constraint("Equal", 11, 12))
sketch8.addConstraint(Sketcher.Constraint("Equal", 12, 13))
sketch8.addConstraint(Sketcher.Constraint("Equal", 13, 14))
sketch8.addConstraint(Sketcher.Constraint("PointOnObject", 5, 2, -1))
sketch8.addConstraint(Sketcher.Constraint("Parallel", 1, 4))
sketch8.addConstraint(Sketcher.Constraint("Perpendicular", 4, 8))
sketch8.addConstraint(Sketcher.Constraint("Vertical", 9, 3, 11, 3))
sketch8.addConstraint(Sketcher.Constraint("Diameter", 9, Q("3 mm")))
sketch8.addConstraint(Sketcher.Constraint("Radius", 2, Q("26.2 mm")))
sketch8.addConstraint(Sketcher.Constraint("Angle", 1, Q("-45 deg")))
sketch8.addConstraint(Sketcher.Constraint("DistanceX", 6, 2, 6, 1, Q("42.9 mm")))
sketch8.addConstraint(Sketcher.Constraint("DistanceY", 9, 3, 11, 3, Q("16 mm")))
sketch8.addConstraint(Sketcher.Constraint("DistanceY", 12, 3, 0, 2, Q("4 mm")))
sketch8.addConstraint(Sketcher.Constraint("DistanceX", 4, 2, 2, 3, Q("42 mm")))
sketch8.addConstraint(Sketcher.Constraint("DistanceX", 6, 2, 9, 3, Q("4 mm")))
sketch8.addConstraint(Sketcher.Constraint("DistanceX", -1, 1, 2, 3, Q("81.7 mm")))
sketch8.addConstraint(Sketcher.Constraint("DistanceY", 2, 3, -1, 1, Q("3.6 mm")))
sketch8.addConstraint(Sketcher.Constraint("DistanceY", 7, 1, 7, 2, Q("32.76742 mm")))
sketch8.addConstraint(Sketcher.Constraint("DistanceX", -1, 1, 13, 3, Q("91.5687 mm")))
sketch8.addConstraint(Sketcher.Constraint("DistanceX", 0, 1, 0, 2, Q("50.821785 mm")))
sketch8.addConstraint(Sketcher.Constraint("DistanceX", 3, 2, 3, 1, Q("23.580317 mm")))
sketch8.addConstraint(Sketcher.Constraint("DistanceY", -1, 1, 9, 3, Q("8.38371 mm")))
sketch8.addConstraint(Sketcher.Constraint("DistanceX", -1, 1, 10, 3, Q("51.388268 mm")))
sketch8.addConstraint(Sketcher.Constraint("DistanceY", 10, 3, -1, 1, Q("17.411732 mm")))
sketch8.addConstraint(Sketcher.Constraint("DistanceY", -1, 1, 13, 3, Q("17.926841 mm")))
sketch8.addConstraint(Sketcher.Constraint("DistanceX", 12, 3, 10, 3, Q("11.795781 mm")))
sketch8.addConstraint(Sketcher.Constraint("DistanceY", 10, 3, 14, 3, Q("58.434619 mm")))
sketch8.addConstraint(Sketcher.Constraint("DistanceX", -1, 1, 14, 3, Q("68.472653 mm")))
pad3 = body.newObject("PartDesign::Pad", "Pad002")
pad3.Profile = sketch8
pad3.Length = 4
pad3.Reversed = True
doc.recompute()

chamfer = body.newObject("PartDesign::Chamfer", "Chamfer")
chamfer.Base = (pad3, edges_at(pad3, [
    (82.615, 32.538, -4),
    (105.906, -13.626, -4),
    (69.91, -29.8, -4),
    (48.91, -20.59, -4),
    (39.7, -5.69, -4),
    (18.25, 0, -4),
    (-3.2, 16.384, -4),
    (5.491, 41.458, -4),
    (39.592, 50.149, -4),
]))
chamfer.Size = 2

# Sketch on XY plane
sketch9 = body.newObject("Sketcher::SketchObject", "Sketch008")
sketch9.AttachmentSupport = (doc.getObject("XY_Plane"), [""])
sketch9.MapMode = "FlatFace"
sketch9.AttachmentOffset = App.Placement(Vector(0, 0, 48), App.Rotation())
sketch9.addGeometry(Part.LineSegment(Vector(65, 50, 0), Vector(14, 50, 0)), False)
sketch9.addGeometry(Part.LineSegment(Vector(14, 50, 0), Vector(-3, 33, 0)), False)
sketch9.addGeometry(Part.LineSegment(Vector(-3, 33, 0), Vector(-3, 0, 0)), False)
sketch9.addGeometry(Part.LineSegment(Vector(-3, 0, 0), Vector(40, 0, 0)), False)
sketch9.addGeometry(Part.LineSegment(Vector(40, 0, 0), Vector(40, -11, 0)), False)
sketch9.addGeometry(Part.LineSegment(Vector(40, -11, 0), Vector(58, -30, 0)), False)
sketch9.addGeometry(Part.LineSegment(Vector(58, -30, 0), Vector(82, -30, 0)), False)
sketch9.addGeometry(Part.ArcOfCircle(Part.Circle(Vector(82, -4, 0), Vector(0, 0, 1), 26), math.radians(-90), math.radians(45)), False)
sketch9.addGeometry(Part.LineSegment(Vector(100, 15, 0), Vector(65, 50, 0)), False)
sketch9.addConstraint(Sketcher.Constraint("Coincident", 0, 2, 1, 1))
sketch9.addConstraint(Sketcher.Constraint("Coincident", 1, 2, 2, 1))
sketch9.addConstraint(Sketcher.Constraint("Coincident", 2, 2, 3, 1))
sketch9.addConstraint(Sketcher.Constraint("Coincident", 3, 2, 4, 1))
sketch9.addConstraint(Sketcher.Constraint("Coincident", 4, 2, 5, 1))
sketch9.addConstraint(Sketcher.Constraint("Coincident", 5, 2, 6, 1))
sketch9.addConstraint(Sketcher.Constraint("Tangent", 6, 2, 7, 1))
sketch9.addConstraint(Sketcher.Constraint("Tangent", 7, 2, 8, 1))
sketch9.addConstraint(Sketcher.Constraint("Coincident", 8, 2, 0, 1))
sketch9.addConstraint(Sketcher.Constraint("Horizontal", 0))
sketch9.addConstraint(Sketcher.Constraint("Vertical", 2))
sketch9.addConstraint(Sketcher.Constraint("Horizontal", 3))
sketch9.addConstraint(Sketcher.Constraint("Vertical", 4))
sketch9.addConstraint(Sketcher.Constraint("Horizontal", 6))
sketch9.addConstraint(Sketcher.Constraint("PointOnObject", 2, 2, -1))
sketch9.addConstraint(Sketcher.Constraint("Perpendicular", 1, 5))
sketch9.addConstraint(Sketcher.Constraint("Parallel", 5, 8))
sketch9.addConstraint(Sketcher.Constraint("Radius", 7, Q("26.2 mm")))
sketch9.addConstraint(Sketcher.Constraint("Angle", 1, Q("-135 deg")))
sketch9.addConstraint(Sketcher.Constraint("DistanceX", 3, 1, 3, 2, Q("42.9 mm")))
sketch9.addConstraint(Sketcher.Constraint("DistanceX", 3, 2, 7, 3, Q("42 mm")))
sketch9.addConstraint(Sketcher.Constraint("DistanceX", -1, 1, 7, 3, Q("81.7 mm")))
sketch9.addConstraint(Sketcher.Constraint("DistanceY", 7, 3, -1, 1, Q("3.6 mm")))
sketch9.addConstraint(Sketcher.Constraint("DistanceY", 2, 2, 2, 1, Q("32.76742 mm")))
sketch9.addConstraint(Sketcher.Constraint("DistanceX", 0, 2, 0, 1, Q("50.821785 mm")))
sketch9.addConstraint(Sketcher.Constraint("DistanceX", 6, 1, 6, 2, Q("23.580317 mm")))
pocket6 = body.newObject("PartDesign::Pocket", "Pocket005")
pocket6.Profile = sketch9
pocket6.Length = 48

# Sketch on XY plane
sketch10 = body.newObject("Sketcher::SketchObject", "Sketch009")
sketch10.AttachmentSupport = (doc.getObject("XY_Plane"), [""])
sketch10.MapMode = "FlatFace"
sketch10.AttachmentOffset = App.Placement(Vector(0, 0, -4), App.Rotation())
sketch10.addGeometry(Part.Circle(Vector(0.8, 24.4, 0), Vector(0, 0, 1), 3), False)
sketch10.addGeometry(Part.Circle(Vector(0.8, 8.4, 0), Vector(0, 0, 1), 3), False)
sketch10.addGeometry(Part.Circle(Vector(39.6, 46.1, 0), Vector(0, 0, 1), 3), False)
sketch10.addGeometry(Part.Circle(Vector(68.5, 41, 0), Vector(0, 0, 1), 3), False)
sketch10.addGeometry(Part.Circle(Vector(51.4, -17.4, 0), Vector(0, 0, 1), 3), False)
sketch10.addGeometry(Part.Circle(Vector(91.6, 17.9, 0), Vector(0, 0, 1), 3), False)
sketch10.addConstraint(Sketcher.Constraint("Equal", 0, 1))
sketch10.addConstraint(Sketcher.Constraint("Equal", 1, 2))
sketch10.addConstraint(Sketcher.Constraint("Equal", 2, 3))
sketch10.addConstraint(Sketcher.Constraint("Equal", 3, 4))
sketch10.addConstraint(Sketcher.Constraint("Equal", 4, 5))
sketch10.addConstraint(Sketcher.Constraint("Vertical", 0, 3, 1, 3))
sketch10.addConstraint(Sketcher.Constraint("Diameter", 0, Q("6 mm")))
sketch10.addConstraint(Sketcher.Constraint("DistanceY", 1, 3, 0, 3, Q("16 mm")))
sketch10.addConstraint(Sketcher.Constraint("DistanceX", -1, 1, 0, 3, Q("0.8 mm")))
sketch10.addConstraint(Sketcher.Constraint("DistanceX", -1, 1, 5, 3, Q("91.5687 mm")))
sketch10.addConstraint(Sketcher.Constraint("DistanceY", -1, 1, 0, 3, Q("24.38371 mm")))
sketch10.addConstraint(Sketcher.Constraint("DistanceX", -1, 1, 4, 3, Q("51.388268 mm")))
sketch10.addConstraint(Sketcher.Constraint("DistanceY", 4, 3, -1, 1, Q("17.411732 mm")))
sketch10.addConstraint(Sketcher.Constraint("DistanceY", -1, 1, 5, 3, Q("17.926841 mm")))
sketch10.addConstraint(Sketcher.Constraint("DistanceY", 4, 3, 3, 3, Q("58.434619 mm")))
sketch10.addConstraint(Sketcher.Constraint("DistanceX", 2, 3, 4, 3, Q("11.795781 mm")))
sketch10.addConstraint(Sketcher.Constraint("DistanceY", -1, 1, 2, 3, Q("46.149015 mm")))
sketch10.addConstraint(Sketcher.Constraint("DistanceX", -1, 1, 3, 3, Q("68.472653 mm")))
pocket7 = body.newObject("PartDesign::Pocket", "Pocket006")
pocket7.Profile = sketch10
pocket7.Length = 2
pocket7.Reversed = True

doc.recompute()
